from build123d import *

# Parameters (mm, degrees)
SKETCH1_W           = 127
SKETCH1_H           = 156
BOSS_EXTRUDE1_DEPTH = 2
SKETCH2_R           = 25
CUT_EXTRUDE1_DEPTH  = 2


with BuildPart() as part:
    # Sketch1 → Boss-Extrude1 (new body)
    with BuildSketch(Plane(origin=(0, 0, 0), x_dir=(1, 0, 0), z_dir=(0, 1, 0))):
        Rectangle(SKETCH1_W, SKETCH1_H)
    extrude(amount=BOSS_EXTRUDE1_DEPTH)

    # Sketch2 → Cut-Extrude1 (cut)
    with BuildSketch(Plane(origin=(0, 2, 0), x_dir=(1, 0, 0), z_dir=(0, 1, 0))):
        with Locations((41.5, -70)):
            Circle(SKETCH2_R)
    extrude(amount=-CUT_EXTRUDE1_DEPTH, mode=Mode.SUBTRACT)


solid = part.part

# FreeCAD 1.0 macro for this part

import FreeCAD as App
import Part
import Sketcher

doc = App.newDocument("Part")
params = doc.addObject("Spreadsheet::Sheet", "Params")
for row, (alias, value) in enumerate([
    ("sketch1_width", "127 mm"),
    ("sketch1_height", "156 mm"),
    ("pad1_length", "2 mm"),
    ("sketch2_diameter", "50 mm"),
    ("pocket1_length", "2 mm"),
], start=1):
    params.set(f"A{row}", alias)
    params.set(f"B{row}", "=" + value)
    params.setAlias(f"B{row}", alias)

body = doc.addObject("PartDesign::Body", "Body")

# Sketch on XZ plane
sketch1 = body.newObject("Sketcher::SketchObject", "Sketch")
sketch1.AttachmentSupport = (doc.getObject("XZ_Plane"), [""])
sketch1.MapMode = "FlatFace"
sketch1.addGeometry([
    Part.LineSegment(App.Vector(-64, -78, 0), App.Vector(-64, 78, 0)),
    Part.LineSegment(App.Vector(-64, 78, 0), App.Vector(64, 78, 0)),
    Part.LineSegment(App.Vector(64, 78, 0), App.Vector(64, -78, 0)),
    Part.LineSegment(App.Vector(64, -78, 0), App.Vector(-64, -78, 0)),
], False)
sketch1.addConstraint([
    Sketcher.Constraint("Coincident", 0, 2, 1, 1),
    Sketcher.Constraint("Coincident", 1, 2, 2, 1),
    Sketcher.Constraint("Coincident", 2, 2, 3, 1),
    Sketcher.Constraint("Coincident", 3, 2, 0, 1),
    Sketcher.Constraint("Vertical", 0),
    Sketcher.Constraint("Horizontal", 1),
    Sketcher.Constraint("Vertical", 2),
    Sketcher.Constraint("Horizontal", 3),
    Sketcher.Constraint("Symmetric", 0, 2, 2, 2, -1, 1),
    Sketcher.Constraint("DistanceX", 1, 1, 1, 2, 127.0),
    Sketcher.Constraint("DistanceY", 0, 1, 0, 2, 156.0),
])
sketch1.setExpression("Constraints[9]", "Params.sketch1_width")
sketch1.setExpression("Constraints[10]", "Params.sketch1_height")
pad1 = body.newObject("PartDesign::Pad", "Pad")
pad1.Profile = sketch1
pad1.setExpression("Length", "Params.pad1_length")
pad1.Reversed = True

# Sketch on XZ plane
sketch2 = body.newObject("Sketcher::SketchObject", "Sketch001")
sketch2.AttachmentSupport = (doc.getObject("XZ_Plane"), [""])
sketch2.MapMode = "FlatFace"
sketch2.AttachmentOffset = App.Placement(App.Vector(0, 0, -2), App.Rotation())
sketch2.addGeometry(Part.Circle(App.Vector(42, 70, 0), App.Vector(0, 0, 1), 25), False)
sketch2.addConstraint([
    Sketcher.Constraint("Diameter", 0, 50.0),
    Sketcher.Constraint("DistanceY", -1, 1, 0, 3, 70.0),
    Sketcher.Constraint("DistanceX", -1, 1, 0, 3, 41.5),
])
sketch2.setExpression("Constraints[0]", "Params.sketch2_diameter")
pocket1 = body.newObject("PartDesign::Pocket", "Pocket")
pocket1.Profile = sketch2
pocket1.setExpression("Length", "Params.pocket1_length")
pocket1.Reversed = True

doc.recompute()
